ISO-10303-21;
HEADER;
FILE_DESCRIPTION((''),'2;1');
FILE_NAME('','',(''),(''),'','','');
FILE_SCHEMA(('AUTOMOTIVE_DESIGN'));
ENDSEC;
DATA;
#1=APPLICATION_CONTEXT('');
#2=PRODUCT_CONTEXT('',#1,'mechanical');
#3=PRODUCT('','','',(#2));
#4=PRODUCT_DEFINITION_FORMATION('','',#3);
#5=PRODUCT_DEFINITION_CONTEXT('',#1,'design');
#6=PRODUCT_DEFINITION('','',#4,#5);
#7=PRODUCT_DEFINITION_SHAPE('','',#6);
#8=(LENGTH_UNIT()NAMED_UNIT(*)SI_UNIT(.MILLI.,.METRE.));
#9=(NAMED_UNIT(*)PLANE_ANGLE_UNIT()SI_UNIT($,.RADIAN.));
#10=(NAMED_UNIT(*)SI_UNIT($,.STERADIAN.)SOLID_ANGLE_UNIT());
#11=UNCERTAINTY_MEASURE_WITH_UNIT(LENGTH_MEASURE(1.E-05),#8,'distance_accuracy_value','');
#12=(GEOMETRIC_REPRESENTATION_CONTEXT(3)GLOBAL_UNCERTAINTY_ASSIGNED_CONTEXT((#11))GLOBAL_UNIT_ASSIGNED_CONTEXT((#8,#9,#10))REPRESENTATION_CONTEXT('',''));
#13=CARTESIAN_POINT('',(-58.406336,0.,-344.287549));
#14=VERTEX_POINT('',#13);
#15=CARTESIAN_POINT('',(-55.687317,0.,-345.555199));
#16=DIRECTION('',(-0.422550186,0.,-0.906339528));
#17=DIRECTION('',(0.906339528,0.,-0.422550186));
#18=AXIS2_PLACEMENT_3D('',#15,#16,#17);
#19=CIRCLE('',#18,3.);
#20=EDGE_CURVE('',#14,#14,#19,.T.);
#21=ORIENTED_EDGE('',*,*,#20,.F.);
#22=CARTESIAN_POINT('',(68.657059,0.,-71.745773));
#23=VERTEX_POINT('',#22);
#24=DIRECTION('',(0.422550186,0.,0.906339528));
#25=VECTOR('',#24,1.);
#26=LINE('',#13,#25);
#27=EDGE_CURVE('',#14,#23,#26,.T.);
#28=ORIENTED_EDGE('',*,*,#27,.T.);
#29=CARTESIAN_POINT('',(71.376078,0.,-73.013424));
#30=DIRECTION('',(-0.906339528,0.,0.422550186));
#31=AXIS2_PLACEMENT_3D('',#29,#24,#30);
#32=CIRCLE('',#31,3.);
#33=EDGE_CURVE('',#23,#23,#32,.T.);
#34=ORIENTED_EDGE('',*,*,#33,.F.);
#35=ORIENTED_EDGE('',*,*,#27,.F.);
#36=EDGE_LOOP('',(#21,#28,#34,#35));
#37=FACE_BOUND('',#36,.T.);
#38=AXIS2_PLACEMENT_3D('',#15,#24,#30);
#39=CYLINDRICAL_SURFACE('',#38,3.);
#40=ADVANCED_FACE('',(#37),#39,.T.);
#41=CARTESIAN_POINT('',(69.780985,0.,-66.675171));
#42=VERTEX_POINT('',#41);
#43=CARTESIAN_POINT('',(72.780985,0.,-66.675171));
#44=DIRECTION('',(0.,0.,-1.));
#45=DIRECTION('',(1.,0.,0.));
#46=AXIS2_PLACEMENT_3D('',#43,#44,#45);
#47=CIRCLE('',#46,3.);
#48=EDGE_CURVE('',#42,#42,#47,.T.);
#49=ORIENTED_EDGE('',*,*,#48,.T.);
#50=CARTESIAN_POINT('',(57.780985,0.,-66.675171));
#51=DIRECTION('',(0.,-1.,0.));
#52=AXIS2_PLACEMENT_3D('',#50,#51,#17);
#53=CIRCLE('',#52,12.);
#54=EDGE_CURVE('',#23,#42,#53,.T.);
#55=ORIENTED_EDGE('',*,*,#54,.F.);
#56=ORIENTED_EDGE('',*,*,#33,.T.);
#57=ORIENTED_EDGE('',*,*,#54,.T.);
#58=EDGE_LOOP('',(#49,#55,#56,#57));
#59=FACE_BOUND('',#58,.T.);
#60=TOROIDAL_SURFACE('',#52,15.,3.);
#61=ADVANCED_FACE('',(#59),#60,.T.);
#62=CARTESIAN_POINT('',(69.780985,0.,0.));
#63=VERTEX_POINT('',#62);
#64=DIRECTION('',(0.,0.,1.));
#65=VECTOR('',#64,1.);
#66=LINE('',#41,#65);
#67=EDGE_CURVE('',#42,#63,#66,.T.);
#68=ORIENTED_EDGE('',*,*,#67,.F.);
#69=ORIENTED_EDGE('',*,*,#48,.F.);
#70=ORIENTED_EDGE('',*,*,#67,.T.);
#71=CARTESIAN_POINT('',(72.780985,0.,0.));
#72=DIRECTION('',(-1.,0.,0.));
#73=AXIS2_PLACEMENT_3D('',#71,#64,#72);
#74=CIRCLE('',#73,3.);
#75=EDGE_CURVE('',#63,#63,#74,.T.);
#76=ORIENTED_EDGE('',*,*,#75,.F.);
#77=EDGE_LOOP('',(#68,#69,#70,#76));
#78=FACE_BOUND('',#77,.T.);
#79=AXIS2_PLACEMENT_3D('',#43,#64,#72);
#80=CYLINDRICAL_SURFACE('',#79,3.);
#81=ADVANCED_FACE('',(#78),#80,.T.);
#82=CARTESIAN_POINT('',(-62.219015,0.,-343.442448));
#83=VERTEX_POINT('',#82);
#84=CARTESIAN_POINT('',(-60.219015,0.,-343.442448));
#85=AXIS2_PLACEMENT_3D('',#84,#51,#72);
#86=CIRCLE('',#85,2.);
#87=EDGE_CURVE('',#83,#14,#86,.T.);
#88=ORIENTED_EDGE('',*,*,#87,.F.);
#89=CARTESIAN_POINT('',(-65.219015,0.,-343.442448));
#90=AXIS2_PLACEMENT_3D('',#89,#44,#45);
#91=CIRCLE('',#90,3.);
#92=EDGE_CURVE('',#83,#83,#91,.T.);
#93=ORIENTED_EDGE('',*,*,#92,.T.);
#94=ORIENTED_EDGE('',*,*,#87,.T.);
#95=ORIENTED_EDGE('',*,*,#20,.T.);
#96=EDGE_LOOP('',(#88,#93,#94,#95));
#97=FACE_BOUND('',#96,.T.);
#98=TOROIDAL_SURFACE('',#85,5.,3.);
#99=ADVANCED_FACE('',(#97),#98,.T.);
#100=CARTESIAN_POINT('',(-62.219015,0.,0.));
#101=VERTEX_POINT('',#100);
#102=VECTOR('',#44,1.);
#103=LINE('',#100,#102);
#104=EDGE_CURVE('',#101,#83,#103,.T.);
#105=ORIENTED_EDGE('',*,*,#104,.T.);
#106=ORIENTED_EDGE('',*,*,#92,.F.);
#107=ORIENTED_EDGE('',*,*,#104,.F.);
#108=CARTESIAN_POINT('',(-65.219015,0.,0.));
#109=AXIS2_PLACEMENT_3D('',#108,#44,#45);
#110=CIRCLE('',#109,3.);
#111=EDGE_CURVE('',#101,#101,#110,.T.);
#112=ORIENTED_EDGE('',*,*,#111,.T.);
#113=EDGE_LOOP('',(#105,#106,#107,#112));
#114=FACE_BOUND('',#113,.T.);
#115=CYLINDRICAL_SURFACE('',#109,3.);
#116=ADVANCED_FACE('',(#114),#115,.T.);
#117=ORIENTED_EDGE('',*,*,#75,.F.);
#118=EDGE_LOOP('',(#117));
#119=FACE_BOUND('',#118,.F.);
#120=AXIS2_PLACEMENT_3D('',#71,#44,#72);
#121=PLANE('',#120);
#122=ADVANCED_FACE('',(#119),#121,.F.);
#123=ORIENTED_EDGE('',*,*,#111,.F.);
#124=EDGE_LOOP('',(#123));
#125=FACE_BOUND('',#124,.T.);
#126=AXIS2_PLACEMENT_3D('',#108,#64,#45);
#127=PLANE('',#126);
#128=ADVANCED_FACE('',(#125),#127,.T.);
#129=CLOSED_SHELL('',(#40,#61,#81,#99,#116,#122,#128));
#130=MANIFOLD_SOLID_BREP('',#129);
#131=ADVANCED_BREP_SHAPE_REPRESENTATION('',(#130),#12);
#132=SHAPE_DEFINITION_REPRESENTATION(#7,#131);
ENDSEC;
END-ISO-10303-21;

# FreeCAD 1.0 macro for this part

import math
import FreeCAD as App
import Part
import Sketcher

V = App.Vector

doc = App.newDocument("Part")
body = doc.addObject("PartDesign::Body", "Body")

# Sketch on XY plane
sketch1 = doc.addObject("Sketcher::SketchObject", "Sketch")
body.addObject(sketch1)
sketch1.AttachmentSupport = (doc.XY_Plane, [""])
sketch1.MapMode = "FlatFace"
sketch1.addGeometry(Part.Circle(V(-65.2, 0, 0), V(0, 0, 1), 3), False)
sketch1.addConstraint([
    Sketcher.Constraint("PointOnObject", 0, 3, -1),
    Sketcher.Constraint("Diameter", 0, 6.0),
    Sketcher.Constraint("DistanceX", 0, 3, -1, 1, 65.219015),
])

# Sketch on XZ plane
sketch2 = doc.addObject("Sketcher::SketchObject", "Sketch001")
body.addObject(sketch2)
sketch2.AttachmentSupport = (doc.XZ_Plane, [""])
sketch2.MapMode = "FlatFace"
sketch2.addGeometry([
    Part.LineSegment(V(-65, 0, 0), V(-65, -343, 0)),  # 0
    Part.ArcOfCircle(Part.Circle(V(-60, -343, 0), V(0, 0, 1), 5), math.radians(180), math.radians(335)),  # 1
    Part.LineSegment(V(-56, -346, 0), V(71, -73, 0)),  # 2
    Part.ArcOfCircle(Part.Circle(V(58, -67, 0), V(0, 0, 1), 15), math.radians(-25), math.radians(0)),  # 3
    Part.LineSegment(V(73, -67, 0), V(73, 0, 0)),  # 4
], False)
sketch2.addConstraint([
    Sketcher.Constraint("Tangent", 0, 2, 1, 1),
    Sketcher.Constraint("Tangent", 1, 2, 2, 1),
    Sketcher.Constraint("Tangent", 2, 2, 3, 1),
    Sketcher.Constraint("Tangent", 3, 2, 4, 1),
    Sketcher.Constraint("Vertical", 0),
    Sketcher.Constraint("Vertical", 4),
    Sketcher.Constraint("PointOnObject", 0, 1, -1),
    Sketcher.Constraint("PointOnObject", 4, 2, -1),
    Sketcher.Constraint("Radius", 1, 5.0),
    Sketcher.Constraint("Radius", 3, 15.0),
    Sketcher.Constraint("DistanceX", 1, 3, 3, 3, 118.0),
    Sketcher.Constraint("DistanceY", 0, 2, 0, 1, 343.442448),
    Sketcher.Constraint("DistanceY", 4, 1, 4, 2, 66.675171),
    Sketcher.Constraint("DistanceX", -1, 1, 2, 2, 71.376078),
])
doc.recompute()

additivepipe = doc.addObject("PartDesign::AdditivePipe", "AdditivePipe")
body.addObject(additivepipe)
additivepipe.Profile = sketch1
additivepipe.Spine = (sketch2, ["Edge1", "Edge2", "Edge3", "Edge4", "Edge5"])

doc.recompute()
